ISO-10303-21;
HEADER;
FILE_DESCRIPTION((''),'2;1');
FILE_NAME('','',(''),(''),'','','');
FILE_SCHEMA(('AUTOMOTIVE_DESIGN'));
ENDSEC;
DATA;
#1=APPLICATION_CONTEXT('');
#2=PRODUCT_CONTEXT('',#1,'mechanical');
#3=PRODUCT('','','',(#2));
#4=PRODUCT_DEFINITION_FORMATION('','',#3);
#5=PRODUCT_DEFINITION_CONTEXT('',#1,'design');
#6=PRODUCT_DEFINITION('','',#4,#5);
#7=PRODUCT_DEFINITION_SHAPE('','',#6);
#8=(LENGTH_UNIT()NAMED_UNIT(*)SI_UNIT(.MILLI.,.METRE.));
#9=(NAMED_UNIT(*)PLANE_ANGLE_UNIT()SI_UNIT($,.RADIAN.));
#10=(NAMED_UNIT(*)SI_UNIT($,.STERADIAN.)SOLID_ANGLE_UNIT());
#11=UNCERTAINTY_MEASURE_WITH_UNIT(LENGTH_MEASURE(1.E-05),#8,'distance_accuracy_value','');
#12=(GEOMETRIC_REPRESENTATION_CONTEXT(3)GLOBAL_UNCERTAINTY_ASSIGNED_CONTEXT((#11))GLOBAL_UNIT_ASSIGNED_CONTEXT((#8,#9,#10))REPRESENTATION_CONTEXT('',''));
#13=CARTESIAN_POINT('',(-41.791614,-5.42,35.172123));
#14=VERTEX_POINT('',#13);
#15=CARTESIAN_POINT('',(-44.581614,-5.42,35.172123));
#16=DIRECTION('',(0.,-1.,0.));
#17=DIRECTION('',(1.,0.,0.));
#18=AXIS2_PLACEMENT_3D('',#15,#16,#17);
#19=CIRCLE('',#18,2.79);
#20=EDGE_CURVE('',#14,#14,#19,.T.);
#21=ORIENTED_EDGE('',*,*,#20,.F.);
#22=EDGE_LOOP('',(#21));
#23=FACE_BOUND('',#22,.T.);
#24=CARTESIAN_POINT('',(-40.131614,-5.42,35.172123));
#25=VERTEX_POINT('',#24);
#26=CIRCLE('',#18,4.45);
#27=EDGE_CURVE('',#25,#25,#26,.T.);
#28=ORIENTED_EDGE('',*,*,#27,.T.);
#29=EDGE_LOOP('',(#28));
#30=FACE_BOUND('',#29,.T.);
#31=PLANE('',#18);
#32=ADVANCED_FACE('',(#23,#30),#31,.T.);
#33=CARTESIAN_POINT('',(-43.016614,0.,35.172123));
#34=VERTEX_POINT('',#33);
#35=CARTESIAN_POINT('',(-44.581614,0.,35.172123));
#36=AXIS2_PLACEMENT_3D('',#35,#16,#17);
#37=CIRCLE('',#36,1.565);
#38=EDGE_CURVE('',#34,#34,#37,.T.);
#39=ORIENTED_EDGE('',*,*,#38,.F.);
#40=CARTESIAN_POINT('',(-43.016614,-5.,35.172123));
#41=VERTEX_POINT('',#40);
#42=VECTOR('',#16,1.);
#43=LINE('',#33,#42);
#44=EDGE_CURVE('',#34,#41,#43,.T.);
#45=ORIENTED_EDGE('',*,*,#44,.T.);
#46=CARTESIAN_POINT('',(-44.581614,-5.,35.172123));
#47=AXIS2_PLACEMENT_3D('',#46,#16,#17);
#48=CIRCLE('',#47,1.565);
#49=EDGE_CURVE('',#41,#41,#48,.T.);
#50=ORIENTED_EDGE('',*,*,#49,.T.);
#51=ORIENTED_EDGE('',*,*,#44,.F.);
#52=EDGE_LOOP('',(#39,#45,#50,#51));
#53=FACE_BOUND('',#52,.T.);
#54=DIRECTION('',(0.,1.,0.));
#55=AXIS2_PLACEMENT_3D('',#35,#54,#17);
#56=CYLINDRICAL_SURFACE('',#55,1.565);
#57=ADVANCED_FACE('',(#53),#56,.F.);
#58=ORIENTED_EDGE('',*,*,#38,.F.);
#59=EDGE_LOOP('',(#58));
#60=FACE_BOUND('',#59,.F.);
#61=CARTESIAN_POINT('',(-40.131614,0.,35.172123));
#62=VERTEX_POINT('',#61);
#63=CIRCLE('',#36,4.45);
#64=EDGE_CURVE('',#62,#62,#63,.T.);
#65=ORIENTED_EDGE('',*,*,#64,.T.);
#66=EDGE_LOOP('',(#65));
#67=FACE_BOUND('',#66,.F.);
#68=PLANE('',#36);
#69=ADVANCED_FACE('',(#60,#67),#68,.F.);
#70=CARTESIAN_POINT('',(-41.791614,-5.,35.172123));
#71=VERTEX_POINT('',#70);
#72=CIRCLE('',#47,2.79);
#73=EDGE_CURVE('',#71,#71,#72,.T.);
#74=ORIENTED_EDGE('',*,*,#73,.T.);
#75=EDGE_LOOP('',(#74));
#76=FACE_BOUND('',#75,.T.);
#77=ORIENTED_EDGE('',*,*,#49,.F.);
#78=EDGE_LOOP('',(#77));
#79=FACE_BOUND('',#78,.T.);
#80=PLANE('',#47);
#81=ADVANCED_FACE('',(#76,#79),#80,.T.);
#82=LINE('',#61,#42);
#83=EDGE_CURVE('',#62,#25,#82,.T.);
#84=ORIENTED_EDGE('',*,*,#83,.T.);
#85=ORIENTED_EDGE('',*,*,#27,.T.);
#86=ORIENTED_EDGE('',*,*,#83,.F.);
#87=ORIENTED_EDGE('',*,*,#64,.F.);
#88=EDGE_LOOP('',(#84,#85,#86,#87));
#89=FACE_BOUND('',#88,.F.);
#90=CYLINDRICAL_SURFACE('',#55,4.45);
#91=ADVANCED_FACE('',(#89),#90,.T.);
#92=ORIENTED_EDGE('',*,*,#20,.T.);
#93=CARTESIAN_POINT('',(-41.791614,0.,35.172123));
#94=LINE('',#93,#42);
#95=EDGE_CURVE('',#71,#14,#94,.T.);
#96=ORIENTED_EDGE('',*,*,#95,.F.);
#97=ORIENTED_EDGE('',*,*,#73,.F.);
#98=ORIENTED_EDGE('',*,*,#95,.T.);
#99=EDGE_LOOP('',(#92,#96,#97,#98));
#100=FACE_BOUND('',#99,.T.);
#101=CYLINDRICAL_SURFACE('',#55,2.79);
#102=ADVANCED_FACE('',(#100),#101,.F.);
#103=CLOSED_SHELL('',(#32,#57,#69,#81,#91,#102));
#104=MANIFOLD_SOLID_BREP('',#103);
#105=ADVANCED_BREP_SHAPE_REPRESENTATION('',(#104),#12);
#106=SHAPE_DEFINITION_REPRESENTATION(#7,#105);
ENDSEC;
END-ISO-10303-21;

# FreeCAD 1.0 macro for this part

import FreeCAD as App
import Part
import Sketcher
from FreeCAD import Vector
Q = App.Units.Quantity

doc = App.newDocument("Part")
body = doc.addObject("PartDesign::Body", "Body")

# Sketch on XZ plane
sketch1 = body.newObject("Sketcher::SketchObject", "Sketch")
sketch1.AttachmentSupport = (doc.getObject("XZ_Plane"), [""])
sketch1.MapMode = "FlatFace"
sketch1.addGeometry(Part.Circle(Vector(-44.6, 35.2, 0), Vector(0, 0, 1), 4.5), False)
sketch1.addGeometry(Part.Circle(Vector(-44.6, 35.2, 0), Vector(0, 0, 1), 2.8), False)
sketch1.addConstraint(Sketcher.Constraint("Coincident", 1, 3, 0, 3))
sketch1.addConstraint(Sketcher.Constraint("Diameter", 0, Q("8.9 mm")))
sketch1.addConstraint(Sketcher.Constraint("Diameter", 1, Q("5.58 mm")))
sketch1.addConstraint(Sketcher.Constraint("DistanceX", 0, 3, -1, 1, Q("44.581614 mm")))
sketch1.addConstraint(Sketcher.Constraint("DistanceY", -1, 1, 0, 3, Q("35.172123 mm")))
pad1 = body.newObject("PartDesign::Pad", "Pad")
pad1.Profile = sketch1
pad1.Length = 5.42

# Sketch on XZ plane
sketch2 = body.newObject("Sketcher::SketchObject", "Sketch001")
sketch2.AttachmentSupport = (doc.getObject("XZ_Plane"), [""])
sketch2.MapMode = "FlatFace"
sketch2.addGeometry(Part.Circle(Vector(-44.6, 35.2, 0), Vector(0, 0, 1), 2.8), False)
sketch2.addGeometry(Part.Circle(Vector(-44.6, 35.2, 0), Vector(0, 0, 1), 1.6), False)
sketch2.addConstraint(Sketcher.Constraint("Coincident", 1, 3, 0, 3))
sketch2.addConstraint(Sketcher.Constraint("Diameter", 0, Q("5.58 mm")))
sketch2.addConstraint(Sketcher.Constraint("Diameter", 1, Q("3.13 mm")))
sketch2.addConstraint(Sketcher.Constraint("DistanceX", 0, 3, -1, 1, Q("44.581614 mm")))
sketch2.addConstraint(Sketcher.Constraint("DistanceY", -1, 1, 0, 3, Q("35.172123 mm")))
pad2 = body.newObject("PartDesign::Pad", "Pad001")
pad2.Profile = sketch2
pad2.Length = 5

# Sketch on XZ plane
sketch3 = body.newObject("Sketcher::SketchObject", "Sketch002")
sketch3.AttachmentSupport = (doc.getObject("XZ_Plane"), [""])
sketch3.MapMode = "FlatFace"
sketch3.addGeometry(Part.Circle(Vector(-44.6, 35.2, 0), Vector(0, 0, 1), 1.6), False)
sketch3.addConstraint(Sketcher.Constraint("Diameter", 0, Q("3.13 mm")))
sketch3.addConstraint(Sketcher.Constraint("DistanceX", 0, 3, -1, 1, Q("44.581614 mm")))
sketch3.addConstraint(Sketcher.Constraint("DistanceY", -1, 1, 0, 3, Q("35.172123 mm")))
pocket1 = body.newObject("PartDesign::Pocket", "Pocket")
pocket1.Profile = sketch3
pocket1.Length = 5.42

doc.recompute()
